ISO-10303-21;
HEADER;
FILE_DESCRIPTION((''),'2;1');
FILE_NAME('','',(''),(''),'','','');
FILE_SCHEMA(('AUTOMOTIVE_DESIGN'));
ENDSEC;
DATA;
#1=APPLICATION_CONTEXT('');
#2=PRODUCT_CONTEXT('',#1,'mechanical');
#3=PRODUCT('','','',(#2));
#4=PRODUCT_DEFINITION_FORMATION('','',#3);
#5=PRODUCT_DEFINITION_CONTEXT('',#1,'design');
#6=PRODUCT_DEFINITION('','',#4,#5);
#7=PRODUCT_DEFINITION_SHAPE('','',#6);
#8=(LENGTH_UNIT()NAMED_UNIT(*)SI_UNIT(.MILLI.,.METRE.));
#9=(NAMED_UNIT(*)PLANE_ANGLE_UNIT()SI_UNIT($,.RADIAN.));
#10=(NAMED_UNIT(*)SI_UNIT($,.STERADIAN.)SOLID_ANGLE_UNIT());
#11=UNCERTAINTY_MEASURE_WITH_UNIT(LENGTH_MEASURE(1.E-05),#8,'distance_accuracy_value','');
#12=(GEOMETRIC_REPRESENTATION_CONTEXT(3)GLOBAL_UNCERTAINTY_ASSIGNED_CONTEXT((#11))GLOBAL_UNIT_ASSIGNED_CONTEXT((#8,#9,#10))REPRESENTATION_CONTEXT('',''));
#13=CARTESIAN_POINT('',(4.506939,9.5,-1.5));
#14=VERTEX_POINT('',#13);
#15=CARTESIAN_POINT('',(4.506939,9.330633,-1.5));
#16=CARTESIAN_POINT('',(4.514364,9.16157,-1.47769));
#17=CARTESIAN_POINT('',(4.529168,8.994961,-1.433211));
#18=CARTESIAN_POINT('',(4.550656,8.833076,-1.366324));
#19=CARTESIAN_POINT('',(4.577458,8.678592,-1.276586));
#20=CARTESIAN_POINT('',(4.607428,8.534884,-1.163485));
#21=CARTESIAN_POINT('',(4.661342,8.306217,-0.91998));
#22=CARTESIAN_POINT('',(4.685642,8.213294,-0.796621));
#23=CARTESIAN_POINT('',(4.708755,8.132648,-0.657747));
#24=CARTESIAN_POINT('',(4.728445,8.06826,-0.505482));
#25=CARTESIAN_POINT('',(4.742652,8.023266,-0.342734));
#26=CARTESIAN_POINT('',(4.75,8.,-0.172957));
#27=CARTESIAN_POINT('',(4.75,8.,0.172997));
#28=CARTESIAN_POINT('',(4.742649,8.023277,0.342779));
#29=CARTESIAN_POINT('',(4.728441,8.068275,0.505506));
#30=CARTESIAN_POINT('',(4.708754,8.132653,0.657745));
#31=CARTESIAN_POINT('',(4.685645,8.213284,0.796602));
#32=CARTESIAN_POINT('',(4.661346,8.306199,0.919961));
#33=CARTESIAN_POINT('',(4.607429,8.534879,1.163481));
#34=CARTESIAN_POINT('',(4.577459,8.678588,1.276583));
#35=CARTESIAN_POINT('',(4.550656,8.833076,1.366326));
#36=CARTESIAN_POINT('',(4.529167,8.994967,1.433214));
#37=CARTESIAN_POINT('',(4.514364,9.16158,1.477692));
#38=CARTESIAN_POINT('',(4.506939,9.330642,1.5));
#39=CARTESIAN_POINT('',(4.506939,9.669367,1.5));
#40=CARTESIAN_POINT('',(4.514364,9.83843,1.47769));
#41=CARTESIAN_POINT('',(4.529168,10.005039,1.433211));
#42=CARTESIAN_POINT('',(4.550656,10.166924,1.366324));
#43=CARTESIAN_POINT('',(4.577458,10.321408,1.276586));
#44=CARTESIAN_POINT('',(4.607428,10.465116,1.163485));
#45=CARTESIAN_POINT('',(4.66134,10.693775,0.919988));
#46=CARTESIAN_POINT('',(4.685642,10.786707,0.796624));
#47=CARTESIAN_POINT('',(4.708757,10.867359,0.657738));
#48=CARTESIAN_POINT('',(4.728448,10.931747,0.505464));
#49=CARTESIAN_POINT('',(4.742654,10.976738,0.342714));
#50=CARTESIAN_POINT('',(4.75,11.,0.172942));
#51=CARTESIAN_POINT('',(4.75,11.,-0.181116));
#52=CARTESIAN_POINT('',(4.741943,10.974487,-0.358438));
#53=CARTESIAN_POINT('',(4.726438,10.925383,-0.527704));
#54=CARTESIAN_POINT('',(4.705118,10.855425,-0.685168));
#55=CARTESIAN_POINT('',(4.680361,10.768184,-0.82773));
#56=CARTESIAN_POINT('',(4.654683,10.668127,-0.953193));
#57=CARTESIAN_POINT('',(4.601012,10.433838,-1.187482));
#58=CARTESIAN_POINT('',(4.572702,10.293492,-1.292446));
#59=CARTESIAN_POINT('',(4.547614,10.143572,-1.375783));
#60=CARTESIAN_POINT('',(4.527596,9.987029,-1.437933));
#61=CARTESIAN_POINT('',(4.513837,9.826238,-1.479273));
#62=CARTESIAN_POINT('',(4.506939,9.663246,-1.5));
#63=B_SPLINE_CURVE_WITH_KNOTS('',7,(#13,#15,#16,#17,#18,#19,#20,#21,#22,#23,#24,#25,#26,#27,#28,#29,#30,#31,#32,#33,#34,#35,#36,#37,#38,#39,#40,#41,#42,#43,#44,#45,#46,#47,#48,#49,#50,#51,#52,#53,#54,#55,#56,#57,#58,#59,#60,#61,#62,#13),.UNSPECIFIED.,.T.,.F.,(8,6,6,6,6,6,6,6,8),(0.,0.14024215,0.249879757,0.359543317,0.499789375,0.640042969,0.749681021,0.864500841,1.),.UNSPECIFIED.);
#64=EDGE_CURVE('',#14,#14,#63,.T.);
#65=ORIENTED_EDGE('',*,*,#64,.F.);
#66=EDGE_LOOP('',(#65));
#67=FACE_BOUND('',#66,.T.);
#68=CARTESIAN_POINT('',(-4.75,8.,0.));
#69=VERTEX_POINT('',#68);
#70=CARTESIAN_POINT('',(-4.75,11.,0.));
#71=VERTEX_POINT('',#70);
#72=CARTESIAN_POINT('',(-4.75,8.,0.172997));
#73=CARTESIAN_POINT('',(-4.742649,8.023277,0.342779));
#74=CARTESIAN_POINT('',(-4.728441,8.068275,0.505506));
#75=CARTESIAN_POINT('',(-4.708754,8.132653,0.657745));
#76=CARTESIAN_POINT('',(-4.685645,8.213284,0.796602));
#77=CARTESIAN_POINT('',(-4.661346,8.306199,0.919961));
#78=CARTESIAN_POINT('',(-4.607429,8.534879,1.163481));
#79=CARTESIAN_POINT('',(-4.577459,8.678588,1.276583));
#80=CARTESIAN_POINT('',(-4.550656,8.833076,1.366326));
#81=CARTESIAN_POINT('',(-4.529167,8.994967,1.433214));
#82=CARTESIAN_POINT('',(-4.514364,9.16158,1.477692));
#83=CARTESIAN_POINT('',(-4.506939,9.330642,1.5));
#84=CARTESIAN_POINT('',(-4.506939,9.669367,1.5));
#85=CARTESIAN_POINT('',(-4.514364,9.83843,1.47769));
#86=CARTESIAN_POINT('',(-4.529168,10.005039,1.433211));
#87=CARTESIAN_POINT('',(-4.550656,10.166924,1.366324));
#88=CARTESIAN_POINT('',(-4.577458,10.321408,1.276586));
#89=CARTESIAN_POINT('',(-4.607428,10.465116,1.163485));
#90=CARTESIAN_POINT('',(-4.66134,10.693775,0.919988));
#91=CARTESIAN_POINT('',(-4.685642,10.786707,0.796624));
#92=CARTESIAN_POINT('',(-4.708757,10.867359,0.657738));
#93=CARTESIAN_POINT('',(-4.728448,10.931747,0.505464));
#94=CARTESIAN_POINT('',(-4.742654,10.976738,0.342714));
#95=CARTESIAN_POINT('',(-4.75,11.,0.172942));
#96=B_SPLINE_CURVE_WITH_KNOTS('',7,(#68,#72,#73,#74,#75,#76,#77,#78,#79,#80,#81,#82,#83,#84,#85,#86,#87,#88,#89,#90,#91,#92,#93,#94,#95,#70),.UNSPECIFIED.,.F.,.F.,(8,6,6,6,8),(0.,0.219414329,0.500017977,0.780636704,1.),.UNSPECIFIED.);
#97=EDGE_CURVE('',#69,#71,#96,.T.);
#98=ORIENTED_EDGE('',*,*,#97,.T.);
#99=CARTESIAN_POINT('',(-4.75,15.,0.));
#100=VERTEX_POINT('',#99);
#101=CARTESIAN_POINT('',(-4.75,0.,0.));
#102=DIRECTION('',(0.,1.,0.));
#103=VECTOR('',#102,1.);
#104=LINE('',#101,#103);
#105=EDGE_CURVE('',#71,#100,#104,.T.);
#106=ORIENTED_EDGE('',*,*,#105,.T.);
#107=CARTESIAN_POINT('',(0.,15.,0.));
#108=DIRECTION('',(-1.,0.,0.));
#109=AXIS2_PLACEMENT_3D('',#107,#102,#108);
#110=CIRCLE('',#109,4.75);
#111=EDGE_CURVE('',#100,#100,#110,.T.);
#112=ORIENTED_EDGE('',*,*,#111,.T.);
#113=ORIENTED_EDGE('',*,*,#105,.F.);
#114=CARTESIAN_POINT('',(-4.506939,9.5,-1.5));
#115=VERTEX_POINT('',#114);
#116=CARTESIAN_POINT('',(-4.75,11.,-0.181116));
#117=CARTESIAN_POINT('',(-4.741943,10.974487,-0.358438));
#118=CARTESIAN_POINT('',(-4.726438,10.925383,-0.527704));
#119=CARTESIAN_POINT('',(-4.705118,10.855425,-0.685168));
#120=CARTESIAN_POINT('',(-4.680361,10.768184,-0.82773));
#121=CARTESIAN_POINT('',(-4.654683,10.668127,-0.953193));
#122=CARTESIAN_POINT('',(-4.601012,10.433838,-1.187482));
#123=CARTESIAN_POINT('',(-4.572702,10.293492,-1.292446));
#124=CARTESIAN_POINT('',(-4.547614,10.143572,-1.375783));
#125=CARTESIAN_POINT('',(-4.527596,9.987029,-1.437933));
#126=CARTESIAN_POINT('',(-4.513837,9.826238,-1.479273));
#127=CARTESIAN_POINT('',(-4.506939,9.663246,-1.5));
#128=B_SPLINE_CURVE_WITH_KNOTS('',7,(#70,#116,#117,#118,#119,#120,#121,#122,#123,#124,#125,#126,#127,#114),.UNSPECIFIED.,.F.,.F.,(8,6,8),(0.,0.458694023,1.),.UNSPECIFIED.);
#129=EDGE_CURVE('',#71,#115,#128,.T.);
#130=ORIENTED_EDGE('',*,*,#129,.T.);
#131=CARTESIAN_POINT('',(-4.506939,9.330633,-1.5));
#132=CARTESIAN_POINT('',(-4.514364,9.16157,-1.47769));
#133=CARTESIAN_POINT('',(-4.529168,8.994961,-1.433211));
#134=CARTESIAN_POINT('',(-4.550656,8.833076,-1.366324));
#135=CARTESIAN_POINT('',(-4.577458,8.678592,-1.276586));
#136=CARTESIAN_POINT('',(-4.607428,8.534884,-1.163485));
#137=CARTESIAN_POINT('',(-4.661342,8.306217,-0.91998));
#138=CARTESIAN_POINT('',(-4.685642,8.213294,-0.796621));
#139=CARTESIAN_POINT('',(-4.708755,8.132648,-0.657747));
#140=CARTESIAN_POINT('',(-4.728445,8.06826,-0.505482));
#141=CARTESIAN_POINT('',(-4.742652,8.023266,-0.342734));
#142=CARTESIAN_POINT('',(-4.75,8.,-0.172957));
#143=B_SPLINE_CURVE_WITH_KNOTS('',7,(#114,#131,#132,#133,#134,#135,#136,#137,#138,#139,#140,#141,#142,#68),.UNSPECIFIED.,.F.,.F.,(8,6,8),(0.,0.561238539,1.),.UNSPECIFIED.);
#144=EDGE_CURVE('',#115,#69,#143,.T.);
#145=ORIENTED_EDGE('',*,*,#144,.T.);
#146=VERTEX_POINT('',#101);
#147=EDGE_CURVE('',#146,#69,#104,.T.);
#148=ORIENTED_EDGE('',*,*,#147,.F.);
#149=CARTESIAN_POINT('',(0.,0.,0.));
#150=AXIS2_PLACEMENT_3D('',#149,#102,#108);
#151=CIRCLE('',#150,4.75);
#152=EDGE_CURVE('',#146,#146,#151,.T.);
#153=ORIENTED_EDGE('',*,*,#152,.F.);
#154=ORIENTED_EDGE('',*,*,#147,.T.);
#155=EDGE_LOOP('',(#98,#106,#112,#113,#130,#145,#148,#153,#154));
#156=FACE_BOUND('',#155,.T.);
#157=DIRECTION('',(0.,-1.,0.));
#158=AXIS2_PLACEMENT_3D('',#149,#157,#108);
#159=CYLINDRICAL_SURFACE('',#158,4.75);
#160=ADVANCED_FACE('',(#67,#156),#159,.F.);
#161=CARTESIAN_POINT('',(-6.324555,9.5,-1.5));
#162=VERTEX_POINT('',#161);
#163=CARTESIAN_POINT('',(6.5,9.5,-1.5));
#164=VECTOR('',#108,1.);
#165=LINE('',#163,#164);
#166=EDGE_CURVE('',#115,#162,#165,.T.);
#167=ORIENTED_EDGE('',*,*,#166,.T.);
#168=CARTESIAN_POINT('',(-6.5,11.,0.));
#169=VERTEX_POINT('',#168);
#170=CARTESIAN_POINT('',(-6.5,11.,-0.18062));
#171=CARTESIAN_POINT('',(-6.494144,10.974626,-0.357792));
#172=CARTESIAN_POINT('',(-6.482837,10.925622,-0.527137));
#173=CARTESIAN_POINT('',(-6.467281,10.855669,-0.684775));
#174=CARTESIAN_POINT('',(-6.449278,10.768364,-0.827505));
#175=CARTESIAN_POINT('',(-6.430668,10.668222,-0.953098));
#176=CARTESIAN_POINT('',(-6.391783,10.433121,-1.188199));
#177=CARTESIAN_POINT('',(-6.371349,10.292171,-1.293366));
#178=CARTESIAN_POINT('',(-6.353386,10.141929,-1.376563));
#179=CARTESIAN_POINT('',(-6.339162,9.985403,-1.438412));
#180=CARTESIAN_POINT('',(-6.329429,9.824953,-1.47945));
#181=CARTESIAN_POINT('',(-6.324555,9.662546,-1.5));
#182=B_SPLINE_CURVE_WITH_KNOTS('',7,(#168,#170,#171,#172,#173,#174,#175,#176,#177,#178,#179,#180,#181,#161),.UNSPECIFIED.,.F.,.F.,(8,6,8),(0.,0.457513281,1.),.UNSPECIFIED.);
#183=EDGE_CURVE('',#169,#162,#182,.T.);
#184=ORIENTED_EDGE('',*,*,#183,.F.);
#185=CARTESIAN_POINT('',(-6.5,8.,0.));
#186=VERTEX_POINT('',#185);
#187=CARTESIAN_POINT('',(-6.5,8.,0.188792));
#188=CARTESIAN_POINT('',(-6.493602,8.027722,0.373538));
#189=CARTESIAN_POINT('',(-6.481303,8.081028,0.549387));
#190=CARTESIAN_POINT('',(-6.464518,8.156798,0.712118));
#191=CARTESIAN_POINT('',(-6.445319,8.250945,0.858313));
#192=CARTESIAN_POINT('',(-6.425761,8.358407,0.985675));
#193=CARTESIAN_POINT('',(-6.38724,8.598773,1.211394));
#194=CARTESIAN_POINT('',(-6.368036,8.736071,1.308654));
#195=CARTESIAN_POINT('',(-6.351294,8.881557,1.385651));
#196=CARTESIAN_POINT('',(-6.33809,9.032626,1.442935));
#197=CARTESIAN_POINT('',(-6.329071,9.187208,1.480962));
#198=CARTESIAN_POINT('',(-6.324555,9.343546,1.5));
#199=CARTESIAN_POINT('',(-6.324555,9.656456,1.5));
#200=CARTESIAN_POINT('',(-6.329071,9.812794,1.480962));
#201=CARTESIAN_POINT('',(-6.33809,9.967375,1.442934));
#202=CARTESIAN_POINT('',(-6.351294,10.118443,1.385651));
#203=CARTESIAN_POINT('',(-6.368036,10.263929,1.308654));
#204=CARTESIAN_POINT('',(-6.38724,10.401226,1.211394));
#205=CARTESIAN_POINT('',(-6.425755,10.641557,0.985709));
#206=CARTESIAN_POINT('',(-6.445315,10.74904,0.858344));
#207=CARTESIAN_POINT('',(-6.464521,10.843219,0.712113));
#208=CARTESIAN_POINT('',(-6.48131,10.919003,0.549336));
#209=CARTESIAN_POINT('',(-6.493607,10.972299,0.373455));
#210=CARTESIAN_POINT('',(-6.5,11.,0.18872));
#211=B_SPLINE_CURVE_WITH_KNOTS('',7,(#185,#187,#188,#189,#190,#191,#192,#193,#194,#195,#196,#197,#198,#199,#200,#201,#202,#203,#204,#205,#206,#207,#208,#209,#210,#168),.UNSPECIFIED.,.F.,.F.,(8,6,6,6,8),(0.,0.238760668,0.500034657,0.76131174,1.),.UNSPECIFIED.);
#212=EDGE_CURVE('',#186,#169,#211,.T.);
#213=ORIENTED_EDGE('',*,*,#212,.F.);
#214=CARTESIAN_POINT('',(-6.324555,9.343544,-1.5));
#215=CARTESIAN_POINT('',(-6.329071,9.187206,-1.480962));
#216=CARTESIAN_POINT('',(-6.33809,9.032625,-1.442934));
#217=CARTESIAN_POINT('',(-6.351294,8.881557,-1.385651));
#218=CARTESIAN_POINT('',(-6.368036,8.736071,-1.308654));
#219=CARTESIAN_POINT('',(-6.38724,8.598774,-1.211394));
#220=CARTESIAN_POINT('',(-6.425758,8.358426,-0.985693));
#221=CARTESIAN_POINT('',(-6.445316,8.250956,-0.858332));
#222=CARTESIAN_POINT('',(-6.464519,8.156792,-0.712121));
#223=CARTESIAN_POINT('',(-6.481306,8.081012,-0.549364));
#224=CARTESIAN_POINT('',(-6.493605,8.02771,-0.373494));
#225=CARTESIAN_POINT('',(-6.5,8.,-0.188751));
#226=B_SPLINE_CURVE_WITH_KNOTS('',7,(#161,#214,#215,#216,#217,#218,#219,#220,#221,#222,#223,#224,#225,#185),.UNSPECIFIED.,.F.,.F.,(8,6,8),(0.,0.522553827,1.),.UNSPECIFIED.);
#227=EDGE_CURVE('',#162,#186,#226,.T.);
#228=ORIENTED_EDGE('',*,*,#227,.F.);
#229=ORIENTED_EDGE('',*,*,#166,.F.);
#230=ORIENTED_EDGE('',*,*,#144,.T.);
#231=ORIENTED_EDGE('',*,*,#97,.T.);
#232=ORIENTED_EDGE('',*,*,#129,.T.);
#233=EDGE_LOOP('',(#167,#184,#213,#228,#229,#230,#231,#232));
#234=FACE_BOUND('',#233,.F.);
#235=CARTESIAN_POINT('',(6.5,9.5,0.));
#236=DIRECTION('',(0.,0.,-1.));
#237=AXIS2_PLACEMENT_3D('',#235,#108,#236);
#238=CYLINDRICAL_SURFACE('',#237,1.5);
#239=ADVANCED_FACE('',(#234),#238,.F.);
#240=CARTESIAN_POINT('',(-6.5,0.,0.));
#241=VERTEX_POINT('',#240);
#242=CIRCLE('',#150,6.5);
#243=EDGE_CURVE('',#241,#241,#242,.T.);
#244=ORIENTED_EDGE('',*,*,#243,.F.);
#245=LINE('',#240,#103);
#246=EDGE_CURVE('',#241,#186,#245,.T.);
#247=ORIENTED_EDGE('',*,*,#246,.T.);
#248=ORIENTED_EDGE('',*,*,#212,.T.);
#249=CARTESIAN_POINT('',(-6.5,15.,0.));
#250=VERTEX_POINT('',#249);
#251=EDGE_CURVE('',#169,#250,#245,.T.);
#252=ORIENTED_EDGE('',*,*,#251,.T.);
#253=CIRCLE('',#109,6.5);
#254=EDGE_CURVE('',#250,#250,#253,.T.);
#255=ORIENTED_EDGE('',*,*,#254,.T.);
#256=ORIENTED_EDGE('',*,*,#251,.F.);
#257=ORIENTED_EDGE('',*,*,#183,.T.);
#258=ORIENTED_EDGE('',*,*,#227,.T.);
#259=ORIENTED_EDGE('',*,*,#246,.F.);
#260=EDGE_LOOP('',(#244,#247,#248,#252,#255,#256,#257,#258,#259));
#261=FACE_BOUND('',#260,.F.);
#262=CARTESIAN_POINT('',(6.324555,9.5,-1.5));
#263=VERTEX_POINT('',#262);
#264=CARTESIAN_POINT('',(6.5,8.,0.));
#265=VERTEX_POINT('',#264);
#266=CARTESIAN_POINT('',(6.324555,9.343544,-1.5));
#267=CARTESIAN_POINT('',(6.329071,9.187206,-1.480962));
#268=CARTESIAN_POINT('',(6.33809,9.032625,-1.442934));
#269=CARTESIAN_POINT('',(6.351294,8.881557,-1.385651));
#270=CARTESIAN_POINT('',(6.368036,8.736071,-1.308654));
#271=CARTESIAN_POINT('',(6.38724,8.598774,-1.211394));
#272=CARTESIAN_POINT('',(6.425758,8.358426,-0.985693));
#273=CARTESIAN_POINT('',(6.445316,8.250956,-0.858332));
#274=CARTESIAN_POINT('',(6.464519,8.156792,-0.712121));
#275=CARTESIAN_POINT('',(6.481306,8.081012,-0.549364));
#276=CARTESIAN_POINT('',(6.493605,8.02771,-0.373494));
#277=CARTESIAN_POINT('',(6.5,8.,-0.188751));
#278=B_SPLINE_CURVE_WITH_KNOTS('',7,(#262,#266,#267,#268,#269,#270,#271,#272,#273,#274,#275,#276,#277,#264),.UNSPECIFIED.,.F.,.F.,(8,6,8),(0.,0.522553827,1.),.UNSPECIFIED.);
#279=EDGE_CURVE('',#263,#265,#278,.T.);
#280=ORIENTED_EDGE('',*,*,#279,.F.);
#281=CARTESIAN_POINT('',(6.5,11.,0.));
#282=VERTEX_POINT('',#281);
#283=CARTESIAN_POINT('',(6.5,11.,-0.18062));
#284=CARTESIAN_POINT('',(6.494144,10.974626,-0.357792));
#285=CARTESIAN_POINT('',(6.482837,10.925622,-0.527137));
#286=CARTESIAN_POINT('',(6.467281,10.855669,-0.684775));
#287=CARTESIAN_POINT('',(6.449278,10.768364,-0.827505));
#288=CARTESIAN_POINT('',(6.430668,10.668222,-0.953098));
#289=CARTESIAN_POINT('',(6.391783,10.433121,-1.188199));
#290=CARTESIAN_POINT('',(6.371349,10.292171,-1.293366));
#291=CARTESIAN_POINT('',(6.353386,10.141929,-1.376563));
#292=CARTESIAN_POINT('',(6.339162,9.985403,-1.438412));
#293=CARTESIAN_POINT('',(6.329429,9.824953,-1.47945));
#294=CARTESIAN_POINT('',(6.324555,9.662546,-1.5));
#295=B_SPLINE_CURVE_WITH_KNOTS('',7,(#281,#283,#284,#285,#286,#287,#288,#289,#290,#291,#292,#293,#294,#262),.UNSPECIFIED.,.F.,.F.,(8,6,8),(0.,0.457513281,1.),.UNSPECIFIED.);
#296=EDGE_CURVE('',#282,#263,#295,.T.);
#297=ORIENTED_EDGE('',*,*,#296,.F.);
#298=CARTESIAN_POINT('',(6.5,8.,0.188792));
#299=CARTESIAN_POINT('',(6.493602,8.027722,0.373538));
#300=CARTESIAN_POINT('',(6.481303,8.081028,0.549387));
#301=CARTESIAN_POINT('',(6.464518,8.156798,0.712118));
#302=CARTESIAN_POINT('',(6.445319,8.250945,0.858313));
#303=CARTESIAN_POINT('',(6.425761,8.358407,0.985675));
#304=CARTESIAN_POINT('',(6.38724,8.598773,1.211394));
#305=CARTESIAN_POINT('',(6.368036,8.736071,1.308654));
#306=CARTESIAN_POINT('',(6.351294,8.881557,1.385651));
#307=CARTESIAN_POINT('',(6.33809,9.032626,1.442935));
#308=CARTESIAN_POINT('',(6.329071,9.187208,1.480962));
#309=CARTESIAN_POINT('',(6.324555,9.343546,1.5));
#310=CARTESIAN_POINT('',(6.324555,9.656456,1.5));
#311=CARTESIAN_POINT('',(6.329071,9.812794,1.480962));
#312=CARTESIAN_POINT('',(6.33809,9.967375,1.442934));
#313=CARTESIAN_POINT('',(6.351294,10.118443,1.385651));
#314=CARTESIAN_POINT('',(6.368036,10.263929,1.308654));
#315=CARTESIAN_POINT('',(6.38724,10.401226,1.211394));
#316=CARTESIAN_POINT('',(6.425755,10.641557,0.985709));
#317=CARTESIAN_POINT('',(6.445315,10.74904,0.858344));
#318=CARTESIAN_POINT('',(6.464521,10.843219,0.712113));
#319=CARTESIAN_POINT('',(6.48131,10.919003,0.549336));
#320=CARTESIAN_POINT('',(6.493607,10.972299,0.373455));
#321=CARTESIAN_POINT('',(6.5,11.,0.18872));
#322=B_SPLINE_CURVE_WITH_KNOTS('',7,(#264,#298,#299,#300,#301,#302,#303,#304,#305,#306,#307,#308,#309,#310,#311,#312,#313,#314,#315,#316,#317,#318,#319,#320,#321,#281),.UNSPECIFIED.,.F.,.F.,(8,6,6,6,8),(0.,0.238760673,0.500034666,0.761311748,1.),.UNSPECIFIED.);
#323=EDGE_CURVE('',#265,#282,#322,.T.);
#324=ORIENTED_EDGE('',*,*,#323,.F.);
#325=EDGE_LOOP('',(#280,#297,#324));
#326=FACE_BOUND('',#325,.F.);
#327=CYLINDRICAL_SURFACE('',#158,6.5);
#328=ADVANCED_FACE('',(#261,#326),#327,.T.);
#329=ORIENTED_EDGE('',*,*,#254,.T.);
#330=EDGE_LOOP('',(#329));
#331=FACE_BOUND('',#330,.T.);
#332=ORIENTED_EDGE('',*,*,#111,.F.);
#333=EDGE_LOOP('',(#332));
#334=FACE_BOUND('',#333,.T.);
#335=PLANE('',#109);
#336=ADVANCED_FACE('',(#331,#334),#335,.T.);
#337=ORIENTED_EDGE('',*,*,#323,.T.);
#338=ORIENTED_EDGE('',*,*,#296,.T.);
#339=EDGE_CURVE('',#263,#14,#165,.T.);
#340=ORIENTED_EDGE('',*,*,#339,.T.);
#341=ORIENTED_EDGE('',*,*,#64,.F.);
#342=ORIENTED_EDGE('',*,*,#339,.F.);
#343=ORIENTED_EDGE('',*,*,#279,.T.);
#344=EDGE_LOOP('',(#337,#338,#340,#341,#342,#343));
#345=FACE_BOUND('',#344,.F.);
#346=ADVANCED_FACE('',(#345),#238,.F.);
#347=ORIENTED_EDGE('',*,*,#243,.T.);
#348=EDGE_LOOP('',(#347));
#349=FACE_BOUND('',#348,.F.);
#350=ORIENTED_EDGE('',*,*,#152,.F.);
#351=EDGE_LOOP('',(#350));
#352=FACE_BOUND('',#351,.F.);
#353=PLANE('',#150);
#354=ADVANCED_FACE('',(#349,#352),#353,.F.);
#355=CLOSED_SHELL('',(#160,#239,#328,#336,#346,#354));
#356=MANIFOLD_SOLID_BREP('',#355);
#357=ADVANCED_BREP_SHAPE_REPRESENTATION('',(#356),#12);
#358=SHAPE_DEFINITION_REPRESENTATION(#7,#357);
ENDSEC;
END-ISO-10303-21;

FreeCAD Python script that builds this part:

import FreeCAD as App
import Part
import Sketcher
from FreeCAD import Vector

doc = App.newDocument("Part")
body = doc.addObject("PartDesign::Body", "Body")

# Sketch on XZ plane
sketch1 = body.newObject("Sketcher::SketchObject", "Sketch")
sketch1.AttachmentSupport = (doc.getObject("XZ_Plane"), [""])
sketch1.MapMode = "FlatFace"
sketch1.addGeometry([
    Part.Circle(Vector(0, 0, 0), Vector(0, 0, 1), 6.5),
    Part.Circle(Vector(0, 0, 0), Vector(0, 0, 1), 4.8),
], False)
sketch1.addConstraint([
    Sketcher.Constraint("Coincident", 0, 3, -1, 1),
    Sketcher.Constraint("Coincident", 1, 3, -1, 1),
    Sketcher.Constraint("Diameter", 0, 13.0),
    Sketcher.Constraint("Diameter", 1, 9.5),
])
pad1 = body.newObject("PartDesign::Pad", "Pad")
pad1.Profile = sketch1
pad1.Length = 15
pad1.Reversed = True

# Sketch on YZ plane
sketch2 = body.newObject("Sketcher::SketchObject", "Sketch001")
sketch2.AttachmentSupport = (doc.getObject("YZ_Plane"), [""])
sketch2.MapMode = "FlatFace"
sketch2.AttachmentOffset = App.Placement(Vector(0, 0, 6.5), App.Rotation())
sketch2.addGeometry(Part.Circle(Vector(9.5, 0, 0), Vector(0, 0, 1), 1.5), False)
sketch2.addConstraint([
    Sketcher.Constraint("PointOnObject", 0, 3, -1),
    Sketcher.Constraint("Diameter", 0, 3.0),
    Sketcher.Constraint("DistanceX", -1, 1, 0, 3, 9.5),
])
doc.recompute()
hole = body.newObject("PartDesign::Hole", "Hole")
hole.Profile = sketch2
hole.ThreadType = "None"
hole.Diameter = 3
hole.DepthType = "ThroughAll"

doc.recompute()
